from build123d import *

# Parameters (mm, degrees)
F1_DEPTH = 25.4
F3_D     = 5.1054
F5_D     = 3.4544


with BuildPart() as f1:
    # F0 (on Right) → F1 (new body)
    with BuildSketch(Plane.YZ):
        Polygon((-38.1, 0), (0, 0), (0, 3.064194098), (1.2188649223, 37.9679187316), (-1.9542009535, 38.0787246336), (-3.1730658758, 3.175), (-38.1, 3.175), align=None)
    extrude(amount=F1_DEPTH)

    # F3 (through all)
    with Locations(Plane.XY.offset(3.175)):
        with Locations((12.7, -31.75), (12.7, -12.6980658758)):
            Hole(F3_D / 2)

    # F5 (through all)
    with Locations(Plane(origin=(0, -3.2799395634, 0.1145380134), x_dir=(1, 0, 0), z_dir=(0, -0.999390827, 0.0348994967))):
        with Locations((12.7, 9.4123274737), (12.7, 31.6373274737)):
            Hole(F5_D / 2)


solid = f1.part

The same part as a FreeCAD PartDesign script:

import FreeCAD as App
import Part
import Sketcher
Q = App.Units.Quantity

doc = App.newDocument("Part")
body = doc.addObject("PartDesign::Body", "Body")

# Sketch on YZ plane
sketch1 = body.newObject("Sketcher::SketchObject", "Sketch")
sketch1.AttachmentSupport = (doc.getObject("YZ_Plane"), [""])
sketch1.MapMode = "FlatFace"
sketch1.addGeometry([
    Part.LineSegment(App.Vector(-38.1, 0, 0), App.Vector(0, 0, 0)),  # 0
    Part.LineSegment(App.Vector(0, 0, 0), App.Vector(0, 3.1, 0)),  # 1
    Part.LineSegment(App.Vector(0, 3.1, 0), App.Vector(1.2, 38, 0)),  # 2
    Part.LineSegment(App.Vector(1.2, 38, 0), App.Vector(-2, 38.1, 0)),  # 3
    Part.LineSegment(App.Vector(-2, 38.1, 0), App.Vector(-3.2, 3.2, 0)),  # 4
    Part.LineSegment(App.Vector(-3.2, 3.2, 0), App.Vector(-38.1, 3.2, 0)),  # 5
    Part.LineSegment(App.Vector(-38.1, 3.2, 0), App.Vector(-38.1, 0, 0)),  # 6
], False)
sketch1.addConstraint([
    Sketcher.Constraint("Coincident", 0, 2, 1, 1),
    Sketcher.Constraint("Coincident", 1, 2, 2, 1),
    Sketcher.Constraint("Coincident", 2, 2, 3, 1),
    Sketcher.Constraint("Coincident", 3, 2, 4, 1),
    Sketcher.Constraint("Coincident", 4, 2, 5, 1),
    Sketcher.Constraint("Coincident", 5, 2, 6, 1),
    Sketcher.Constraint("Coincident", 6, 2, 0, 1),
    Sketcher.Constraint("Horizontal", 0),
    Sketcher.Constraint("Vertical", 1),
    Sketcher.Constraint("Horizontal", 5),
    Sketcher.Constraint("Vertical", 6),
    Sketcher.Constraint("Coincident", 0, 2, -1, 1),
    Sketcher.Constraint("Perpendicular", 2, 3),
    Sketcher.Constraint("Perpendicular", 3, 4),
    Sketcher.Constraint("Equal", 2, 4),
    Sketcher.Constraint("DistanceX", 0, 1, 0, 2, Q("1.5 in")),
    Sketcher.Constraint("Angle", 2, Q("88 deg")),
    Sketcher.Constraint("DistanceY", 6, 2, 6, 1, Q("0.125 in")),
    Sketcher.Constraint("Distance", 2, Q("1.375 in")),
    Sketcher.Constraint("Distance", 3, Q("0.125 in")),
])
pad1 = body.newObject("PartDesign::Pad", "Pad")
pad1.Profile = sketch1
pad1.Length = Q("1 in")

# Sketch on XY plane
sketch2 = body.newObject("Sketcher::SketchObject", "Sketch001")
sketch2.AttachmentSupport = (doc.getObject("XY_Plane"), [""])
sketch2.MapMode = "FlatFace"
sketch2.AttachmentOffset = App.Placement(App.Vector(0, 0, 0.125 * 25.4), App.Rotation())
sketch2.addGeometry([
    Part.Circle(App.Vector(12.7, -31.8, 0), App.Vector(0, 0, 1), 2.6),
    Part.Circle(App.Vector(12.7, -12.7, 0), App.Vector(0, 0, 1), 2.6),
], False)
sketch2.addConstraint([
    Sketcher.Constraint("Equal", 0, 1),
    Sketcher.Constraint("Vertical", 0, 3, 1, 3),
    Sketcher.Constraint("Diameter", 0, Q("0.201 in")),
    Sketcher.Constraint("DistanceX", -1, 1, 0, 3, Q("0.5 in")),
    Sketcher.Constraint("DistanceY", 0, 3, -1, 1, Q("1.25 in")),
    Sketcher.Constraint("DistanceY", 1, 3, -1, 1, Q("12.698066 mm")),
])
doc.recompute()
hole = body.newObject("PartDesign::Hole", "Hole")
hole.Profile = sketch2
hole.ThreadType = "None"
hole.Diameter = Q("0.201 in")
hole.DepthType = "ThroughAll"

# Sketch on an angled plane
sketch3 = body.newObject("Sketcher::SketchObject", "Sketch002")
sketch3.Placement = App.Placement(App.Vector(0, -3.27994, 0.114538), App.Rotation(App.Vector(1, 0, 0), App.Vector(0, 0.034899497, 0.999390827), App.Vector(0, -0.999390827, 0.034899497), "ZXY"))
sketch3.addGeometry([
    Part.Circle(App.Vector(12.7, 9.4, 0), App.Vector(0, 0, 1), 1.7),
    Part.Circle(App.Vector(12.7, 31.6, 0), App.Vector(0, 0, 1), 1.7),
], False)
sketch3.addConstraint([
    Sketcher.Constraint("Equal", 0, 1),
    Sketcher.Constraint("Vertical", 0, 3, 1, 3),
    Sketcher.Constraint("Diameter", 0, Q("0.136 in")),
    Sketcher.Constraint("DistanceX", -1, 1, 0, 3, Q("0.5 in")),
    Sketcher.Constraint("DistanceY", 0, 3, 1, 3, Q("0.875 in")),
    Sketcher.Constraint("DistanceY", -1, 1, 0, 3, Q("9.412327 mm")),
])
doc.recompute()
hole2 = body.newObject("PartDesign::Hole", "Hole001")
hole2.Profile = sketch3
hole2.ThreadType = "None"
hole2.Diameter = Q("0.136 in")
hole2.DepthType = "ThroughAll"

doc.recompute()
